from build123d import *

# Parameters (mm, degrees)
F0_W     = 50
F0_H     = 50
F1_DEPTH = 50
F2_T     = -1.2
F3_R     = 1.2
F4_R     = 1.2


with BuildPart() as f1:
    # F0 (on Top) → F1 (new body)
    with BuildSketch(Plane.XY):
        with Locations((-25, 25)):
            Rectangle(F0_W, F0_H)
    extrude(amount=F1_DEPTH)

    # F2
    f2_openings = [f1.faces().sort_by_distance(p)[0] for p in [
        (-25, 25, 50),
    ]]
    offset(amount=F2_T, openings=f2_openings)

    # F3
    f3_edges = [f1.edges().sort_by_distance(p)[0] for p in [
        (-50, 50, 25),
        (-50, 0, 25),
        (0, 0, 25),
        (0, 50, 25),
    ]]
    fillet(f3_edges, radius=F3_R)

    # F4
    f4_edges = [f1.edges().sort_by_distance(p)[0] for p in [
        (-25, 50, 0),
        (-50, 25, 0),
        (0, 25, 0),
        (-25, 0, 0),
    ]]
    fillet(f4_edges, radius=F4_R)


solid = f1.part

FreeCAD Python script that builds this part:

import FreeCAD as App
import Part
import Sketcher

V = App.Vector


def edges_at(feature, points):
    """Names of the edges that pass closest to the given points."""
    edges = feature.Shape.Edges
    near = lambda p: min(range(len(edges)), key=lambda i: edges[i].distToShape(Part.Vertex(*p))[0])
    return sorted({f"Edge{near(p) + 1}" for p in points})


def faces_at(feature, points):
    """Names of the faces that lie closest to the given points."""
    faces = feature.Shape.Faces
    near = lambda p: min(range(len(faces)), key=lambda i: faces[i].distToShape(Part.Vertex(*p))[0])
    return sorted({f"Face{near(p) + 1}" for p in points})


def add_polygon(sketch, points):
    """Adds a closed chain of lines whose ends are joined by coincident constraints."""
    first, n = sketch.GeometryCount, len(points)
    for a, b in zip(points, points[1:] + points[:1]):
        sketch.addGeometry(Part.LineSegment(App.Vector(*a, 0), App.Vector(*b, 0)), False)
    for i in range(n):
        sketch.addConstraint(Sketcher.Constraint("Coincident", first + i, 2, first + (i + 1) % n, 1))

doc = App.newDocument("Part")
body = doc.addObject("PartDesign::Body", "Body")

# Sketch on XY plane
sketch1 = body.newObject("Sketcher::SketchObject", "Sketch")
sketch1.AttachmentSupport = (doc.getObject("XY_Plane"), [""])
sketch1.MapMode = "FlatFace"
add_polygon(sketch1, [(-50, 50), (-50, 0), (0, 0), (0, 50)])  # lines 0-3
sketch1.addConstraint([
    Sketcher.Constraint("Vertical", 0),
    Sketcher.Constraint("Horizontal", 1),
    Sketcher.Constraint("Vertical", 2),
    Sketcher.Constraint("Horizontal", 3),
    Sketcher.Constraint("Coincident", 1, 2, -1, 1),
    Sketcher.Constraint("Equal", 3, 0),
    Sketcher.Constraint("DistanceX", 1, 1, 1, 2, 50.0),
])
pad1 = body.newObject("PartDesign::Pad", "Pad")
pad1.Profile = sketch1
pad1.Length = 50
doc.recompute()

thickness = body.newObject("PartDesign::Thickness", "Thickness")
thickness.Base = (pad1, faces_at(pad1, [(-25, 25, 50)]))
thickness.Value = 1.2
thickness.Reversed = True
thickness.Join = "Arc"
doc.recompute()

fillet = body.newObject("PartDesign::Fillet", "Fillet")
fillet.Base = (thickness, edges_at(thickness, [
    (-50, 50, 25),
    (-50, 0, 25),
    (0, 0, 25),
    (0, 50, 25),
]))
fillet.Radius = 1.2
doc.recompute()

fillet2 = body.newObject("PartDesign::Fillet", "Fillet001")
fillet2.Base = (fillet, edges_at(fillet, [
    (-25, 50, 0),
    (-50, 25, 0),
    (0, 25, 0),
    (-25, 0, 0),
]))
fillet2.Radius = 1.2

doc.recompute()
